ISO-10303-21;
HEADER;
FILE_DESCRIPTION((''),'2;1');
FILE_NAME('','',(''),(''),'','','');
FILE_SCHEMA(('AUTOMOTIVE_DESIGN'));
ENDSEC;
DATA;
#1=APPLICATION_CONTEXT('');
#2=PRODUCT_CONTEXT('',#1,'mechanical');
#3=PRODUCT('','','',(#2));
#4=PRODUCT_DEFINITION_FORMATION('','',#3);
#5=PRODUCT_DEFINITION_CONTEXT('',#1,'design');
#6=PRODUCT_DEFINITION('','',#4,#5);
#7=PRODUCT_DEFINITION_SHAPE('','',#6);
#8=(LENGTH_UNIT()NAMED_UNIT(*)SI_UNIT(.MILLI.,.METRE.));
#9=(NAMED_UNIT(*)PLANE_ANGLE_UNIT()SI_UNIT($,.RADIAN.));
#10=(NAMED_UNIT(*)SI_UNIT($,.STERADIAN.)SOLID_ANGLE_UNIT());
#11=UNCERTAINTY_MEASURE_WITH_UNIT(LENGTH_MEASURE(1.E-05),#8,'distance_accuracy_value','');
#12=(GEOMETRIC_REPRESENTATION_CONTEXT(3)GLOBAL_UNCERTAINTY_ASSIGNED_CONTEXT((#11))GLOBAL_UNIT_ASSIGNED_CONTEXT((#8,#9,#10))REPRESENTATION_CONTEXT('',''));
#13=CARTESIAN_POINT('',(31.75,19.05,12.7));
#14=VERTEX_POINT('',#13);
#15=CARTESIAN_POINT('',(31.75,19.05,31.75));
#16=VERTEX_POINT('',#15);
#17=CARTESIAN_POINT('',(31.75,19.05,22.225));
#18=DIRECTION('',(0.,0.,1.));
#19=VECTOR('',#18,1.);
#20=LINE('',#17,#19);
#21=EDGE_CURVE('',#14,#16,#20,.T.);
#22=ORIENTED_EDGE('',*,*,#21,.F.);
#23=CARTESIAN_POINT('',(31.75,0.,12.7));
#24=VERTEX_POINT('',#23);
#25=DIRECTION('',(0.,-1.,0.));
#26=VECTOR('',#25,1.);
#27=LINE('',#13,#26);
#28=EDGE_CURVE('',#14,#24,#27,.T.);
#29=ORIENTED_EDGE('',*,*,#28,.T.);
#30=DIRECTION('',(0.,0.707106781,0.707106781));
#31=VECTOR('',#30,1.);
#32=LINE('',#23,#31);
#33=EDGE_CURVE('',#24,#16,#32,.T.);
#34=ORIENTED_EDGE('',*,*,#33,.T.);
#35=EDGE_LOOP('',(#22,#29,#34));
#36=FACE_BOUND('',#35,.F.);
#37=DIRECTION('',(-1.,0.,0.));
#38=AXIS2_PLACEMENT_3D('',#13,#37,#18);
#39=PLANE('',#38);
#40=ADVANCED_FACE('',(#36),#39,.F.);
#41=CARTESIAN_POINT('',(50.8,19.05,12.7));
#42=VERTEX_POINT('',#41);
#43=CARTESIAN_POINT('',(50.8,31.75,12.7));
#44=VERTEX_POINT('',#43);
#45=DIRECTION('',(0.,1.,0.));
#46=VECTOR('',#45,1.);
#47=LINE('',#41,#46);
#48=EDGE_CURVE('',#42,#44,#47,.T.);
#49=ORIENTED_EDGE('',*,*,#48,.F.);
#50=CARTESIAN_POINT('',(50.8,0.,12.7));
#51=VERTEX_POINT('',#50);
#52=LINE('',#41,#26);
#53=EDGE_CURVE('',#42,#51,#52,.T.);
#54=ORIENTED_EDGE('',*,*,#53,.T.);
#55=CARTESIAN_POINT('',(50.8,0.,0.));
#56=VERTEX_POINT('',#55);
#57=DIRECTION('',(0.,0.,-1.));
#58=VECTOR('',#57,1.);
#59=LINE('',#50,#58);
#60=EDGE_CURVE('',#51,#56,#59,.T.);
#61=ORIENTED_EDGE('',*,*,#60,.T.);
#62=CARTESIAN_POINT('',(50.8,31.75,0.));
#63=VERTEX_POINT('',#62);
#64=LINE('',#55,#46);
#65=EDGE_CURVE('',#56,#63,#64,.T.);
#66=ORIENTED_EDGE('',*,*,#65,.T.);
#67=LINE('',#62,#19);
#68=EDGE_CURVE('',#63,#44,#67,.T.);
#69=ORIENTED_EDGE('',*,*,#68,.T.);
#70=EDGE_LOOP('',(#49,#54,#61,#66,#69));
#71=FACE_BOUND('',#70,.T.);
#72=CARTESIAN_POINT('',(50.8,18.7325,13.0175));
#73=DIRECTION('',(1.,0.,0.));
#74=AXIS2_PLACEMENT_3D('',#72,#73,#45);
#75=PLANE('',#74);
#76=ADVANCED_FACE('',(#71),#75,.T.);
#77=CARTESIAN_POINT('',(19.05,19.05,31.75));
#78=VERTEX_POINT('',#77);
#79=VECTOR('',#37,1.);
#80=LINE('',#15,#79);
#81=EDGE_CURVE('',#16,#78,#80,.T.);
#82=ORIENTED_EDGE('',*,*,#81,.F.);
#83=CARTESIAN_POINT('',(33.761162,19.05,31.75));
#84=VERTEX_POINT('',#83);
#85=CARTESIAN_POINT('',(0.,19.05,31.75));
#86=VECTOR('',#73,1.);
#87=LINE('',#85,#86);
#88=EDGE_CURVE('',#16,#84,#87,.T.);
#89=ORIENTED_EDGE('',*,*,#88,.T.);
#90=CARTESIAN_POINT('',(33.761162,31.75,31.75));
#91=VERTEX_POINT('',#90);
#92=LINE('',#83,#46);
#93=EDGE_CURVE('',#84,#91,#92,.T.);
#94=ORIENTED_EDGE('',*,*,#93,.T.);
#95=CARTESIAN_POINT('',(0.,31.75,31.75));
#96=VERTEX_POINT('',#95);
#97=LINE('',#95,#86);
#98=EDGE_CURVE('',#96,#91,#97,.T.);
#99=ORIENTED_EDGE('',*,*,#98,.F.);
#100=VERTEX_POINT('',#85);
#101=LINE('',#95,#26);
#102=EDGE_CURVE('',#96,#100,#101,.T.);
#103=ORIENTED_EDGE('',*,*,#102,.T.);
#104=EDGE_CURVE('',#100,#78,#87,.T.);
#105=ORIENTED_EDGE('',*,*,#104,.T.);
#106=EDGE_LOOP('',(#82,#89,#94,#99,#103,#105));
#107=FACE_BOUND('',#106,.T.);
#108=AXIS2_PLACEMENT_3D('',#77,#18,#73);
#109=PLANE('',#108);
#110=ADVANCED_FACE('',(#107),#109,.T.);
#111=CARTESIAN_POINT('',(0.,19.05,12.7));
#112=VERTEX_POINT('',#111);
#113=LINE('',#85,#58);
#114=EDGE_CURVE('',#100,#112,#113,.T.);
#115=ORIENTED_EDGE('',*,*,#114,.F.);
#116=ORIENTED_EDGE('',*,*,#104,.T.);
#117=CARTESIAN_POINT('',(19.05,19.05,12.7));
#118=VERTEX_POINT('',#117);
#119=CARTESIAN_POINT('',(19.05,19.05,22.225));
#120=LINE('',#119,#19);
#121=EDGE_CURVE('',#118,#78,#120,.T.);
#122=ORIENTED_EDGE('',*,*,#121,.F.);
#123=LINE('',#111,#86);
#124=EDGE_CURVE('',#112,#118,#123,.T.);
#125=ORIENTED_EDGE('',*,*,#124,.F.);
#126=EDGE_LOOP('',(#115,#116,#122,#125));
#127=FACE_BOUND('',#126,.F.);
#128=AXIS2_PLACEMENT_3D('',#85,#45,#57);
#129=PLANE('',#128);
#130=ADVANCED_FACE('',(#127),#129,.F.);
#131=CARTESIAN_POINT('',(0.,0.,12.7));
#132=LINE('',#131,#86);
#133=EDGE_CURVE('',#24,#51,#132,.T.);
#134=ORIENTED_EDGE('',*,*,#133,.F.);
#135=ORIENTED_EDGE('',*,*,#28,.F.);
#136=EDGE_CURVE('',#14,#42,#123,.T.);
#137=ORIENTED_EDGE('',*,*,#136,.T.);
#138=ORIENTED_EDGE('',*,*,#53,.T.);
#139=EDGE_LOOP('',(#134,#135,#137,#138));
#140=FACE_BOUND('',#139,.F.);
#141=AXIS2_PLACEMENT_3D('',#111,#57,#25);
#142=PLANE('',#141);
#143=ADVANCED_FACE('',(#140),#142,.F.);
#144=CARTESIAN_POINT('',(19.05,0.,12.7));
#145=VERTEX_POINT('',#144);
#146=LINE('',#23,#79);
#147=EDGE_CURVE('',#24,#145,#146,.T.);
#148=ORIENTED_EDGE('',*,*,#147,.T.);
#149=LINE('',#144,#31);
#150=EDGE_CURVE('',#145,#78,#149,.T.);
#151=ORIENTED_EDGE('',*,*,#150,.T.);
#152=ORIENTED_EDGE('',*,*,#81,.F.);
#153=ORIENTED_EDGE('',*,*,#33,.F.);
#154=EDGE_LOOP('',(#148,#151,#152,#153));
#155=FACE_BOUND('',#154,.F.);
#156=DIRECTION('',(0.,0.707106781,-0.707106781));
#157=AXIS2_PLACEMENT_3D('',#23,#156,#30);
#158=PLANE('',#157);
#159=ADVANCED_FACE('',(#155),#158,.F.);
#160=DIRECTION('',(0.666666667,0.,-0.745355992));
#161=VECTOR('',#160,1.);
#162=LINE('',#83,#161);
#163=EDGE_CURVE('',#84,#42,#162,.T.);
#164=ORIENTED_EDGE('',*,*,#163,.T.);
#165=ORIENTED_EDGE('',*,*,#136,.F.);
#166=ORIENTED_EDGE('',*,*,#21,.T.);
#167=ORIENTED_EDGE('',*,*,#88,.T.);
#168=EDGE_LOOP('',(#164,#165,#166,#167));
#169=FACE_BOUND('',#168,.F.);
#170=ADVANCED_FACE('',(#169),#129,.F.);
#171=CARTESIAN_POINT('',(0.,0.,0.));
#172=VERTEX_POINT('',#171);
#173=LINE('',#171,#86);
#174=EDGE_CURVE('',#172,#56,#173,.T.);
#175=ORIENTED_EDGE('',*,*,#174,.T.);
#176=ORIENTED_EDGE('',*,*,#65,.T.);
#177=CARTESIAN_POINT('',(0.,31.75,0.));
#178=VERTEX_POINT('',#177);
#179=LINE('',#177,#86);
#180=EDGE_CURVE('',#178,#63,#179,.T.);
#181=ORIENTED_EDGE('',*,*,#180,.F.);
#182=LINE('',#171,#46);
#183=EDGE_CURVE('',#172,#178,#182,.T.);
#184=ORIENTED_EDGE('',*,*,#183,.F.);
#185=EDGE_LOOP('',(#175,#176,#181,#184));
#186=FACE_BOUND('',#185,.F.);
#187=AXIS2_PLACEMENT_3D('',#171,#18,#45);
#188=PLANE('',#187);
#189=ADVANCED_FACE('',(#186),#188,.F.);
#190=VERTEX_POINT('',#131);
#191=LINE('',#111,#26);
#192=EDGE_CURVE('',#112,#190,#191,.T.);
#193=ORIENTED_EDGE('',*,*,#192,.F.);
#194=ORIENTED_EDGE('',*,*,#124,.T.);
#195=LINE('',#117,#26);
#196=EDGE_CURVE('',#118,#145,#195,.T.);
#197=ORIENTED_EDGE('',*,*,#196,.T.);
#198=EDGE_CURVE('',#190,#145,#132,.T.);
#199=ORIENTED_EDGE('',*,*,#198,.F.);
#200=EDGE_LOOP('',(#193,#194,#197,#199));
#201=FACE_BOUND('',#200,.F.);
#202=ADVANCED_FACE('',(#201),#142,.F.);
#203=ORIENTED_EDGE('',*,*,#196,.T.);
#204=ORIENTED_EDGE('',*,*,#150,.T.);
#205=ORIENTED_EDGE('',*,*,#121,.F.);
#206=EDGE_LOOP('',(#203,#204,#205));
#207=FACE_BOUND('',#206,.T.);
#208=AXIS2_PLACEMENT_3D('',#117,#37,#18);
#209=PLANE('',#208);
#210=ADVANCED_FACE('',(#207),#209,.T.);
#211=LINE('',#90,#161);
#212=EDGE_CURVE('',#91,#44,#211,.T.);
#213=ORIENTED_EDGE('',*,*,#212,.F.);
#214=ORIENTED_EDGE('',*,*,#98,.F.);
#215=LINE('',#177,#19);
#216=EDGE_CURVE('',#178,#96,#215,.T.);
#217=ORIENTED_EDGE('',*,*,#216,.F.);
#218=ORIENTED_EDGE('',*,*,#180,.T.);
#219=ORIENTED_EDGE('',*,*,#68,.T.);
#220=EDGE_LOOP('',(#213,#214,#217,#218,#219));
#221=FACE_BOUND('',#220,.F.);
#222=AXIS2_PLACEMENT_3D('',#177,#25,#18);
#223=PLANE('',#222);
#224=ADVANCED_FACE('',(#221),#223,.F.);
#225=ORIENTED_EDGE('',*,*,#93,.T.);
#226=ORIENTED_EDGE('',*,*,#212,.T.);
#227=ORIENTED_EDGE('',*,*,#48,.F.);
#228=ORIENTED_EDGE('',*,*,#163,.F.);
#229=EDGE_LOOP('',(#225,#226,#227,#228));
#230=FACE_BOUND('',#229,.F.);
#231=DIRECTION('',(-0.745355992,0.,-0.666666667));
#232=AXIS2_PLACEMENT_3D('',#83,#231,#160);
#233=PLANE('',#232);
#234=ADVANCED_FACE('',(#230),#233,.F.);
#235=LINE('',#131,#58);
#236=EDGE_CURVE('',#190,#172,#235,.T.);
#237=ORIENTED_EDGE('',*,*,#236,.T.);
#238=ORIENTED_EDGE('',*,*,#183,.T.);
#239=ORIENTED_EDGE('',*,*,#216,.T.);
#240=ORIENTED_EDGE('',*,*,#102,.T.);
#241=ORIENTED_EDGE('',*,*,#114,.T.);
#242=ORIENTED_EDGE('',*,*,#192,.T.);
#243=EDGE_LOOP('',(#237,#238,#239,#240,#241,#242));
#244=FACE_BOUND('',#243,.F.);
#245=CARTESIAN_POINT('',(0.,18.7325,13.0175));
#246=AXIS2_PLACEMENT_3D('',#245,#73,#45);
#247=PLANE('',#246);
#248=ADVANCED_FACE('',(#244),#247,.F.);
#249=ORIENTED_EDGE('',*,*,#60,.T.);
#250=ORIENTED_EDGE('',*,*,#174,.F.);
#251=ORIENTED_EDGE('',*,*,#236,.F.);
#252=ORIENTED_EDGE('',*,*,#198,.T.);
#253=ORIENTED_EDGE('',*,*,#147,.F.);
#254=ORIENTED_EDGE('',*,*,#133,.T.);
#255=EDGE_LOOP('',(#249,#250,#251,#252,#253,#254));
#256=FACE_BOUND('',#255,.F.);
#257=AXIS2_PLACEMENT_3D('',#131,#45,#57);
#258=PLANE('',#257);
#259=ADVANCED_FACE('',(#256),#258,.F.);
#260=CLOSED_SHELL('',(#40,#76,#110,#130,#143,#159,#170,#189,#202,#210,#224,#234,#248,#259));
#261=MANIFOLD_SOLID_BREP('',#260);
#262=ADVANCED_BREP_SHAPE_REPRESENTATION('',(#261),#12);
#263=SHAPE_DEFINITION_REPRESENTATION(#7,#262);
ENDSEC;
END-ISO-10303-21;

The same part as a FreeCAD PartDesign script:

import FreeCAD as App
import Part
import Sketcher

V = App.Vector
Q = App.Units.Quantity


def add_polygon(sketch, points):
    """Adds a closed chain of lines whose ends are joined by coincident constraints."""
    first, n = sketch.GeometryCount, len(points)
    for a, b in zip(points, points[1:] + points[:1]):
        sketch.addGeometry(Part.LineSegment(App.Vector(*a, 0), App.Vector(*b, 0)), False)
    for i in range(n):
        sketch.addConstraint(Sketcher.Constraint("Coincident", first + i, 2, first + (i + 1) % n, 1))

doc = App.newDocument("Part")
body = doc.addObject("PartDesign::Body", "Body")

sketch1 = body.newObject("Sketcher::SketchObject", "Sketch")
sketch1.AttachmentSupport = (doc.getObject("YZ_Plane"), [""])
sketch1.MapMode = "FlatFace"
add_polygon(sketch1, [(0, 12.7), (0, 0), (31.75, 0), (31.75, 31.75), (19.05, 31.75), (19.05, 12.7)])
sketch1.addConstraint([
    Sketcher.Constraint("Vertical", 0),
    Sketcher.Constraint("Horizontal", 1),
    Sketcher.Constraint("Vertical", 2),
    Sketcher.Constraint("Horizontal", 3),
    Sketcher.Constraint("Vertical", 4),
    Sketcher.Constraint("Horizontal", 5),
    Sketcher.Constraint("Coincident", 0, 2, -1, 1),
    Sketcher.Constraint("Equal", 3, 0),
    Sketcher.Constraint("Equal", 1, 2),
    Sketcher.Constraint("DistanceX", 3, 2, 3, 1, Q("0.5 in")),
    Sketcher.Constraint("DistanceX", 1, 1, 1, 2, Q("1.25 in")),
])
pad1 = body.newObject("PartDesign::Pad", "Pad")
pad1.Profile = sketch1
pad1.Length = Q("2 in")

sketch2 = body.newObject("Sketcher::SketchObject", "Sketch001")
sketch2.AttachmentSupport = (doc.getObject("XZ_Plane"), [""])
sketch2.MapMode = "FlatFace"
sketch2.AttachmentOffset = App.Placement(V(0, 0, -0.75 * 25.4), App.Rotation())
add_polygon(sketch2, [(50.8, 31.75), (33.761162, 31.75), (50.8, 12.7)])
sketch2.addConstraint([
    Sketcher.Constraint("Horizontal", 0),
    Sketcher.Constraint("Vertical", 2),
    Sketcher.Constraint("DistanceX", -1, 1, 1, 2, Q("2 in")),
    Sketcher.Constraint("DistanceY", 2, 1, 2, 2, Q("0.75 in")),
    Sketcher.Constraint("DistanceY", -1, 1, 1, 2, Q("0.5 in")),
    Sketcher.Constraint("DistanceX", 0, 2, 0, 1, Q("17.038838 mm")),
])
pocket1 = body.newObject("PartDesign::Pocket", "Pocket")
pocket1.Profile = sketch2
pocket1.Length = Q("0.5 in")

sketch3 = body.newObject("Sketcher::SketchObject", "Sketch002")
sketch3.AttachmentSupport = (doc.getObject("XZ_Plane"), [""])
sketch3.MapMode = "FlatFace"
sketch3.AttachmentOffset = App.Placement(V(0, 0, -0.75 * 25.4), App.Rotation())
add_polygon(sketch3, [(19.05, 31.75), (19.05, 12.7), (31.75, 12.7), (31.75, 31.75)])
sketch3.addConstraint([
    Sketcher.Constraint("Vertical", 0),
    Sketcher.Constraint("Horizontal", 1),
    Sketcher.Constraint("Vertical", 2),
    Sketcher.Constraint("Horizontal", 3),
    Sketcher.Constraint("DistanceX", 1, 1, 1, 2, Q("0.5 in")),
    Sketcher.Constraint("DistanceY", 0, 2, 0, 1, Q("0.75 in")),
    Sketcher.Constraint("DistanceY", -1, 1, 0, 2, Q("0.5 in")),
    Sketcher.Constraint("DistanceX", -1, 1, 0, 2, Q("0.75 in")),
])
pad2 = body.newObject("PartDesign::Pad", "Pad001")
pad2.Profile = sketch3
pad2.Length = Q("0.75 in")

sketch4 = body.newObject("Sketcher::SketchObject", "Sketch003")
sketch4.AttachmentSupport = (doc.getObject("YZ_Plane"), [""])
sketch4.MapMode = "FlatFace"
sketch4.AttachmentOffset = App.Placement(V(0, 0, 1.25 * 25.4), App.Rotation())
add_polygon(sketch4, [(0, 12.7), (19.05, 31.75), (0, 31.75)])
sketch4.addConstraint([
    Sketcher.Constraint("Horizontal", 1),
    Sketcher.Constraint("Vertical", 2),
    Sketcher.Constraint("PointOnObject", 1, 2, -2),
    Sketcher.Constraint("Equal", 1, 2),
    Sketcher.Constraint("DistanceX", 1, 2, 1, 1, Q("0.75 in")),
    Sketcher.Constraint("DistanceY", -1, 1, 2, 2, Q("0.5 in")),
])
pocket2 = body.newObject("PartDesign::Pocket", "Pocket001")
pocket2.Profile = sketch4
pocket2.Length = Q("0.5 in")

doc.recompute()
